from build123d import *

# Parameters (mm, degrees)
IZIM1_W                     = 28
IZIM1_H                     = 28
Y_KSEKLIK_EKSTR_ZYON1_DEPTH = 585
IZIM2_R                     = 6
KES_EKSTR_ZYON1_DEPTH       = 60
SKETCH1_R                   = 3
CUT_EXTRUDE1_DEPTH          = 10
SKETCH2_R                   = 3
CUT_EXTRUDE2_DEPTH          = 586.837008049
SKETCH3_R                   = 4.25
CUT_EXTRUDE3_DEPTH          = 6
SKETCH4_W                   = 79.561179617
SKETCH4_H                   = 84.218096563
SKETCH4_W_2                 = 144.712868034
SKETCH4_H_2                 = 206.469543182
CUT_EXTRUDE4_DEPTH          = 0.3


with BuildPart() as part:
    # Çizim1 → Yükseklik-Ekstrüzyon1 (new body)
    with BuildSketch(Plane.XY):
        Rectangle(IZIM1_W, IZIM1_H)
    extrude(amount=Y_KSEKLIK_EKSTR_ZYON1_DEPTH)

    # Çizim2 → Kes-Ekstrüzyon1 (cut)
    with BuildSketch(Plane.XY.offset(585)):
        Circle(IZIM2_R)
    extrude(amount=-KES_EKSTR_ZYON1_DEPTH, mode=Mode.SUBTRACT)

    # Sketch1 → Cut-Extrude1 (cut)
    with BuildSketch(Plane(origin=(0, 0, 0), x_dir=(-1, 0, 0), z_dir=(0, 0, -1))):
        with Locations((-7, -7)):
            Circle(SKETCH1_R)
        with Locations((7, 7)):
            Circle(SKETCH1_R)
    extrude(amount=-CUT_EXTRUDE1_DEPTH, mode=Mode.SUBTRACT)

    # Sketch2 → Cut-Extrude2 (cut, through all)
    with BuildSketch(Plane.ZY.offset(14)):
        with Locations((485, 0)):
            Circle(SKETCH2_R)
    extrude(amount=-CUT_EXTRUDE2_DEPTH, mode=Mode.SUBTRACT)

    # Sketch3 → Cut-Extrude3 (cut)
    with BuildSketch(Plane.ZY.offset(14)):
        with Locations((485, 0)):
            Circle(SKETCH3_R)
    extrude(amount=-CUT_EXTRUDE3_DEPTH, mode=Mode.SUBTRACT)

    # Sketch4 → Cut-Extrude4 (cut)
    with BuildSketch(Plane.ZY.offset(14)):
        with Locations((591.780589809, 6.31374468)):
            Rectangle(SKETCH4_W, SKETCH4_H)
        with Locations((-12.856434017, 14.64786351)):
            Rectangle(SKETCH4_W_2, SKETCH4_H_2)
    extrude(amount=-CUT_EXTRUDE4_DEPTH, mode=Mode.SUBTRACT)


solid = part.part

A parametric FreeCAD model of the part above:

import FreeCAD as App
import Part
import Sketcher
Q = App.Units.Quantity

doc = App.newDocument("Part")
body = doc.addObject("PartDesign::Body", "Body")

sketch1 = body.newObject("Sketcher::SketchObject", "Sketch")
sketch1.AttachmentSupport = (doc.getObject("XY_Plane"), [""])
sketch1.MapMode = "FlatFace"
sketch1.addGeometry([
    Part.LineSegment(App.Vector(-14, 14, 0), App.Vector(-14, -14, 0)),
    Part.LineSegment(App.Vector(-14, -14, 0), App.Vector(14, -14, 0)),
    Part.LineSegment(App.Vector(14, -14, 0), App.Vector(14, 14, 0)),
    Part.LineSegment(App.Vector(14, 14, 0), App.Vector(-14, 14, 0)),
], False)
sketch1.addConstraint([
    Sketcher.Constraint("Coincident", 0, 2, 1, 1),
    Sketcher.Constraint("Coincident", 1, 2, 2, 1),
    Sketcher.Constraint("Coincident", 2, 2, 3, 1),
    Sketcher.Constraint("Coincident", 3, 2, 0, 1),
    Sketcher.Constraint("Vertical", 0),
    Sketcher.Constraint("Horizontal", 1),
    Sketcher.Constraint("Vertical", 2),
    Sketcher.Constraint("Horizontal", 3),
    Sketcher.Constraint("Symmetric", 0, 2, 2, 2, -1, 1),
    Sketcher.Constraint("Equal", 3, 0),
    Sketcher.Constraint("DistanceX", 1, 1, 1, 2, Q("28 mm")),
])
pad1 = body.newObject("PartDesign::Pad", "Pad")
pad1.Profile = sketch1
pad1.Length = 585

sketch2 = body.newObject("Sketcher::SketchObject", "Sketch001")
sketch2.AttachmentSupport = (doc.getObject("XY_Plane"), [""])
sketch2.MapMode = "FlatFace"
sketch2.AttachmentOffset = App.Placement(App.Vector(0, 0, 585), App.Rotation())
sketch2.addGeometry(Part.Circle(App.Vector(0, 0, 0), App.Vector(0, 0, 1), 6), False)
sketch2.addConstraint([
    Sketcher.Constraint("Coincident", 0, 3, -1, 1),
    Sketcher.Constraint("Diameter", 0, Q("12 mm")),
])
pocket1 = body.newObject("PartDesign::Pocket", "Pocket")
pocket1.Profile = sketch2
pocket1.Length = 60

sketch3 = body.newObject("Sketcher::SketchObject", "Sketch002")
sketch3.AttachmentSupport = (doc.getObject("XY_Plane"), [""])
sketch3.MapMode = "FlatFace"
sketch3.addGeometry([
    Part.Circle(App.Vector(7, -7, 0), App.Vector(0, 0, 1), 3),
    Part.Circle(App.Vector(-7, 7, 0), App.Vector(0, 0, 1), 3),
], False)
sketch3.addConstraint([
    Sketcher.Constraint("Equal", 0, 1),
    Sketcher.Constraint("Symmetric", 0, 3, 1, 3, -1, 1),
    Sketcher.Constraint("Diameter", 0, Q("6 mm")),
    Sketcher.Constraint("DistanceX", -1, 1, 0, 3, Q("7 mm")),
    Sketcher.Constraint("DistanceY", 0, 3, -1, 1, Q("7 mm")),
])
pocket2 = body.newObject("PartDesign::Pocket", "Pocket001")
pocket2.Profile = sketch3
pocket2.Length = 10
pocket2.Reversed = True

sketch4 = body.newObject("Sketcher::SketchObject", "Sketch003")
sketch4.AttachmentSupport = (doc.getObject("YZ_Plane"), [""])
sketch4.MapMode = "FlatFace"
sketch4.AttachmentOffset = App.Placement(App.Vector(0, 0, -14), App.Rotation())
sketch4.addGeometry(Part.Circle(App.Vector(0, 485, 0), App.Vector(0, 0, 1), 3), False)
sketch4.addConstraint([
    Sketcher.Constraint("PointOnObject", 0, 3, -2),
    Sketcher.Constraint("Diameter", 0, Q("6 mm")),
    Sketcher.Constraint("DistanceY", -1, 1, 0, 3, Q("485 mm")),
])
pocket3 = body.newObject("PartDesign::Pocket", "Pocket002")
pocket3.Profile = sketch4
pocket3.Type = "ThroughAll"
pocket3.Reversed = True

sketch5 = body.newObject("Sketcher::SketchObject", "Sketch004")
sketch5.AttachmentSupport = (doc.getObject("YZ_Plane"), [""])
sketch5.MapMode = "FlatFace"
sketch5.AttachmentOffset = App.Placement(App.Vector(0, 0, -14), App.Rotation())
sketch5.addGeometry(Part.Circle(App.Vector(0, 485, 0), App.Vector(0, 0, 1), 4.2), False)
sketch5.addConstraint([
    Sketcher.Constraint("PointOnObject", 0, 3, -2),
    Sketcher.Constraint("Diameter", 0, Q("8.5 mm")),
    Sketcher.Constraint("DistanceY", -1, 1, 0, 3, Q("485 mm")),
])
pocket4 = body.newObject("PartDesign::Pocket", "Pocket003")
pocket4.Profile = sketch5
pocket4.Length = 6
pocket4.Reversed = True

sketch6 = body.newObject("Sketcher::SketchObject", "Sketch005")
sketch6.AttachmentSupport = (doc.getObject("YZ_Plane"), [""])
sketch6.MapMode = "FlatFace"
sketch6.AttachmentOffset = App.Placement(App.Vector(0, 0, -14), App.Rotation())
sketch6.addGeometry([
    Part.LineSegment(App.Vector(48, 552, 0), App.Vector(-36, 552, 0)),
    Part.LineSegment(App.Vector(-36, 552, 0), App.Vector(-36, 632, 0)),
    Part.LineSegment(App.Vector(-36, 632, 0), App.Vector(48, 632, 0)),
    Part.LineSegment(App.Vector(48, 632, 0), App.Vector(48, 552, 0)),
    Part.LineSegment(App.Vector(118, -85, 0), App.Vector(-89, -85, 0)),
    Part.LineSegment(App.Vector(-89, -85, 0), App.Vector(-89, 60, 0)),
    Part.LineSegment(App.Vector(-89, 60, 0), App.Vector(118, 60, 0)),
    Part.LineSegment(App.Vector(118, 60, 0), App.Vector(118, -85, 0)),
], False)
sketch6.addConstraint([
    Sketcher.Constraint("Coincident", 0, 2, 1, 1),
    Sketcher.Constraint("Coincident", 1, 2, 2, 1),
    Sketcher.Constraint("Coincident", 2, 2, 3, 1),
    Sketcher.Constraint("Coincident", 3, 2, 0, 1),
    Sketcher.Constraint("Coincident", 4, 2, 5, 1),
    Sketcher.Constraint("Coincident", 5, 2, 6, 1),
    Sketcher.Constraint("Coincident", 6, 2, 7, 1),
    Sketcher.Constraint("Coincident", 7, 2, 4, 1),
    Sketcher.Constraint("Horizontal", 0),
    Sketcher.Constraint("Vertical", 1),
    Sketcher.Constraint("Horizontal", 2),
    Sketcher.Constraint("Vertical", 3),
    Sketcher.Constraint("Horizontal", 4),
    Sketcher.Constraint("Vertical", 5),
    Sketcher.Constraint("Horizontal", 6),
    Sketcher.Constraint("Vertical", 7),
    Sketcher.Constraint("DistanceY", -1, 1, 0, 2, Q("552 mm")),
    Sketcher.Constraint("DistanceY", -1, 1, 5, 2, Q("59.5 mm")),
    Sketcher.Constraint("DistanceY", 1, 1, 1, 2, Q("79.56118 mm")),
    Sketcher.Constraint("DistanceY", 5, 1, 5, 2, Q("144.712868 mm")),
    Sketcher.Constraint("DistanceX", 4, 2, 3, 2, Q("137.009701 mm")),
    Sketcher.Constraint("DistanceX", 0, 2, 0, 1, Q("84.218097 mm")),
    Sketcher.Constraint("DistanceX", 4, 2, 4, 1, Q("206.469543 mm")),
    Sketcher.Constraint("DistanceX", 4, 2, -1, 1, Q("88.586908 mm")),
])
pocket5 = body.newObject("PartDesign::Pocket", "Pocket004")
pocket5.Profile = sketch6
pocket5.Length = 0.3
pocket5.Reversed = True

doc.recompute()
